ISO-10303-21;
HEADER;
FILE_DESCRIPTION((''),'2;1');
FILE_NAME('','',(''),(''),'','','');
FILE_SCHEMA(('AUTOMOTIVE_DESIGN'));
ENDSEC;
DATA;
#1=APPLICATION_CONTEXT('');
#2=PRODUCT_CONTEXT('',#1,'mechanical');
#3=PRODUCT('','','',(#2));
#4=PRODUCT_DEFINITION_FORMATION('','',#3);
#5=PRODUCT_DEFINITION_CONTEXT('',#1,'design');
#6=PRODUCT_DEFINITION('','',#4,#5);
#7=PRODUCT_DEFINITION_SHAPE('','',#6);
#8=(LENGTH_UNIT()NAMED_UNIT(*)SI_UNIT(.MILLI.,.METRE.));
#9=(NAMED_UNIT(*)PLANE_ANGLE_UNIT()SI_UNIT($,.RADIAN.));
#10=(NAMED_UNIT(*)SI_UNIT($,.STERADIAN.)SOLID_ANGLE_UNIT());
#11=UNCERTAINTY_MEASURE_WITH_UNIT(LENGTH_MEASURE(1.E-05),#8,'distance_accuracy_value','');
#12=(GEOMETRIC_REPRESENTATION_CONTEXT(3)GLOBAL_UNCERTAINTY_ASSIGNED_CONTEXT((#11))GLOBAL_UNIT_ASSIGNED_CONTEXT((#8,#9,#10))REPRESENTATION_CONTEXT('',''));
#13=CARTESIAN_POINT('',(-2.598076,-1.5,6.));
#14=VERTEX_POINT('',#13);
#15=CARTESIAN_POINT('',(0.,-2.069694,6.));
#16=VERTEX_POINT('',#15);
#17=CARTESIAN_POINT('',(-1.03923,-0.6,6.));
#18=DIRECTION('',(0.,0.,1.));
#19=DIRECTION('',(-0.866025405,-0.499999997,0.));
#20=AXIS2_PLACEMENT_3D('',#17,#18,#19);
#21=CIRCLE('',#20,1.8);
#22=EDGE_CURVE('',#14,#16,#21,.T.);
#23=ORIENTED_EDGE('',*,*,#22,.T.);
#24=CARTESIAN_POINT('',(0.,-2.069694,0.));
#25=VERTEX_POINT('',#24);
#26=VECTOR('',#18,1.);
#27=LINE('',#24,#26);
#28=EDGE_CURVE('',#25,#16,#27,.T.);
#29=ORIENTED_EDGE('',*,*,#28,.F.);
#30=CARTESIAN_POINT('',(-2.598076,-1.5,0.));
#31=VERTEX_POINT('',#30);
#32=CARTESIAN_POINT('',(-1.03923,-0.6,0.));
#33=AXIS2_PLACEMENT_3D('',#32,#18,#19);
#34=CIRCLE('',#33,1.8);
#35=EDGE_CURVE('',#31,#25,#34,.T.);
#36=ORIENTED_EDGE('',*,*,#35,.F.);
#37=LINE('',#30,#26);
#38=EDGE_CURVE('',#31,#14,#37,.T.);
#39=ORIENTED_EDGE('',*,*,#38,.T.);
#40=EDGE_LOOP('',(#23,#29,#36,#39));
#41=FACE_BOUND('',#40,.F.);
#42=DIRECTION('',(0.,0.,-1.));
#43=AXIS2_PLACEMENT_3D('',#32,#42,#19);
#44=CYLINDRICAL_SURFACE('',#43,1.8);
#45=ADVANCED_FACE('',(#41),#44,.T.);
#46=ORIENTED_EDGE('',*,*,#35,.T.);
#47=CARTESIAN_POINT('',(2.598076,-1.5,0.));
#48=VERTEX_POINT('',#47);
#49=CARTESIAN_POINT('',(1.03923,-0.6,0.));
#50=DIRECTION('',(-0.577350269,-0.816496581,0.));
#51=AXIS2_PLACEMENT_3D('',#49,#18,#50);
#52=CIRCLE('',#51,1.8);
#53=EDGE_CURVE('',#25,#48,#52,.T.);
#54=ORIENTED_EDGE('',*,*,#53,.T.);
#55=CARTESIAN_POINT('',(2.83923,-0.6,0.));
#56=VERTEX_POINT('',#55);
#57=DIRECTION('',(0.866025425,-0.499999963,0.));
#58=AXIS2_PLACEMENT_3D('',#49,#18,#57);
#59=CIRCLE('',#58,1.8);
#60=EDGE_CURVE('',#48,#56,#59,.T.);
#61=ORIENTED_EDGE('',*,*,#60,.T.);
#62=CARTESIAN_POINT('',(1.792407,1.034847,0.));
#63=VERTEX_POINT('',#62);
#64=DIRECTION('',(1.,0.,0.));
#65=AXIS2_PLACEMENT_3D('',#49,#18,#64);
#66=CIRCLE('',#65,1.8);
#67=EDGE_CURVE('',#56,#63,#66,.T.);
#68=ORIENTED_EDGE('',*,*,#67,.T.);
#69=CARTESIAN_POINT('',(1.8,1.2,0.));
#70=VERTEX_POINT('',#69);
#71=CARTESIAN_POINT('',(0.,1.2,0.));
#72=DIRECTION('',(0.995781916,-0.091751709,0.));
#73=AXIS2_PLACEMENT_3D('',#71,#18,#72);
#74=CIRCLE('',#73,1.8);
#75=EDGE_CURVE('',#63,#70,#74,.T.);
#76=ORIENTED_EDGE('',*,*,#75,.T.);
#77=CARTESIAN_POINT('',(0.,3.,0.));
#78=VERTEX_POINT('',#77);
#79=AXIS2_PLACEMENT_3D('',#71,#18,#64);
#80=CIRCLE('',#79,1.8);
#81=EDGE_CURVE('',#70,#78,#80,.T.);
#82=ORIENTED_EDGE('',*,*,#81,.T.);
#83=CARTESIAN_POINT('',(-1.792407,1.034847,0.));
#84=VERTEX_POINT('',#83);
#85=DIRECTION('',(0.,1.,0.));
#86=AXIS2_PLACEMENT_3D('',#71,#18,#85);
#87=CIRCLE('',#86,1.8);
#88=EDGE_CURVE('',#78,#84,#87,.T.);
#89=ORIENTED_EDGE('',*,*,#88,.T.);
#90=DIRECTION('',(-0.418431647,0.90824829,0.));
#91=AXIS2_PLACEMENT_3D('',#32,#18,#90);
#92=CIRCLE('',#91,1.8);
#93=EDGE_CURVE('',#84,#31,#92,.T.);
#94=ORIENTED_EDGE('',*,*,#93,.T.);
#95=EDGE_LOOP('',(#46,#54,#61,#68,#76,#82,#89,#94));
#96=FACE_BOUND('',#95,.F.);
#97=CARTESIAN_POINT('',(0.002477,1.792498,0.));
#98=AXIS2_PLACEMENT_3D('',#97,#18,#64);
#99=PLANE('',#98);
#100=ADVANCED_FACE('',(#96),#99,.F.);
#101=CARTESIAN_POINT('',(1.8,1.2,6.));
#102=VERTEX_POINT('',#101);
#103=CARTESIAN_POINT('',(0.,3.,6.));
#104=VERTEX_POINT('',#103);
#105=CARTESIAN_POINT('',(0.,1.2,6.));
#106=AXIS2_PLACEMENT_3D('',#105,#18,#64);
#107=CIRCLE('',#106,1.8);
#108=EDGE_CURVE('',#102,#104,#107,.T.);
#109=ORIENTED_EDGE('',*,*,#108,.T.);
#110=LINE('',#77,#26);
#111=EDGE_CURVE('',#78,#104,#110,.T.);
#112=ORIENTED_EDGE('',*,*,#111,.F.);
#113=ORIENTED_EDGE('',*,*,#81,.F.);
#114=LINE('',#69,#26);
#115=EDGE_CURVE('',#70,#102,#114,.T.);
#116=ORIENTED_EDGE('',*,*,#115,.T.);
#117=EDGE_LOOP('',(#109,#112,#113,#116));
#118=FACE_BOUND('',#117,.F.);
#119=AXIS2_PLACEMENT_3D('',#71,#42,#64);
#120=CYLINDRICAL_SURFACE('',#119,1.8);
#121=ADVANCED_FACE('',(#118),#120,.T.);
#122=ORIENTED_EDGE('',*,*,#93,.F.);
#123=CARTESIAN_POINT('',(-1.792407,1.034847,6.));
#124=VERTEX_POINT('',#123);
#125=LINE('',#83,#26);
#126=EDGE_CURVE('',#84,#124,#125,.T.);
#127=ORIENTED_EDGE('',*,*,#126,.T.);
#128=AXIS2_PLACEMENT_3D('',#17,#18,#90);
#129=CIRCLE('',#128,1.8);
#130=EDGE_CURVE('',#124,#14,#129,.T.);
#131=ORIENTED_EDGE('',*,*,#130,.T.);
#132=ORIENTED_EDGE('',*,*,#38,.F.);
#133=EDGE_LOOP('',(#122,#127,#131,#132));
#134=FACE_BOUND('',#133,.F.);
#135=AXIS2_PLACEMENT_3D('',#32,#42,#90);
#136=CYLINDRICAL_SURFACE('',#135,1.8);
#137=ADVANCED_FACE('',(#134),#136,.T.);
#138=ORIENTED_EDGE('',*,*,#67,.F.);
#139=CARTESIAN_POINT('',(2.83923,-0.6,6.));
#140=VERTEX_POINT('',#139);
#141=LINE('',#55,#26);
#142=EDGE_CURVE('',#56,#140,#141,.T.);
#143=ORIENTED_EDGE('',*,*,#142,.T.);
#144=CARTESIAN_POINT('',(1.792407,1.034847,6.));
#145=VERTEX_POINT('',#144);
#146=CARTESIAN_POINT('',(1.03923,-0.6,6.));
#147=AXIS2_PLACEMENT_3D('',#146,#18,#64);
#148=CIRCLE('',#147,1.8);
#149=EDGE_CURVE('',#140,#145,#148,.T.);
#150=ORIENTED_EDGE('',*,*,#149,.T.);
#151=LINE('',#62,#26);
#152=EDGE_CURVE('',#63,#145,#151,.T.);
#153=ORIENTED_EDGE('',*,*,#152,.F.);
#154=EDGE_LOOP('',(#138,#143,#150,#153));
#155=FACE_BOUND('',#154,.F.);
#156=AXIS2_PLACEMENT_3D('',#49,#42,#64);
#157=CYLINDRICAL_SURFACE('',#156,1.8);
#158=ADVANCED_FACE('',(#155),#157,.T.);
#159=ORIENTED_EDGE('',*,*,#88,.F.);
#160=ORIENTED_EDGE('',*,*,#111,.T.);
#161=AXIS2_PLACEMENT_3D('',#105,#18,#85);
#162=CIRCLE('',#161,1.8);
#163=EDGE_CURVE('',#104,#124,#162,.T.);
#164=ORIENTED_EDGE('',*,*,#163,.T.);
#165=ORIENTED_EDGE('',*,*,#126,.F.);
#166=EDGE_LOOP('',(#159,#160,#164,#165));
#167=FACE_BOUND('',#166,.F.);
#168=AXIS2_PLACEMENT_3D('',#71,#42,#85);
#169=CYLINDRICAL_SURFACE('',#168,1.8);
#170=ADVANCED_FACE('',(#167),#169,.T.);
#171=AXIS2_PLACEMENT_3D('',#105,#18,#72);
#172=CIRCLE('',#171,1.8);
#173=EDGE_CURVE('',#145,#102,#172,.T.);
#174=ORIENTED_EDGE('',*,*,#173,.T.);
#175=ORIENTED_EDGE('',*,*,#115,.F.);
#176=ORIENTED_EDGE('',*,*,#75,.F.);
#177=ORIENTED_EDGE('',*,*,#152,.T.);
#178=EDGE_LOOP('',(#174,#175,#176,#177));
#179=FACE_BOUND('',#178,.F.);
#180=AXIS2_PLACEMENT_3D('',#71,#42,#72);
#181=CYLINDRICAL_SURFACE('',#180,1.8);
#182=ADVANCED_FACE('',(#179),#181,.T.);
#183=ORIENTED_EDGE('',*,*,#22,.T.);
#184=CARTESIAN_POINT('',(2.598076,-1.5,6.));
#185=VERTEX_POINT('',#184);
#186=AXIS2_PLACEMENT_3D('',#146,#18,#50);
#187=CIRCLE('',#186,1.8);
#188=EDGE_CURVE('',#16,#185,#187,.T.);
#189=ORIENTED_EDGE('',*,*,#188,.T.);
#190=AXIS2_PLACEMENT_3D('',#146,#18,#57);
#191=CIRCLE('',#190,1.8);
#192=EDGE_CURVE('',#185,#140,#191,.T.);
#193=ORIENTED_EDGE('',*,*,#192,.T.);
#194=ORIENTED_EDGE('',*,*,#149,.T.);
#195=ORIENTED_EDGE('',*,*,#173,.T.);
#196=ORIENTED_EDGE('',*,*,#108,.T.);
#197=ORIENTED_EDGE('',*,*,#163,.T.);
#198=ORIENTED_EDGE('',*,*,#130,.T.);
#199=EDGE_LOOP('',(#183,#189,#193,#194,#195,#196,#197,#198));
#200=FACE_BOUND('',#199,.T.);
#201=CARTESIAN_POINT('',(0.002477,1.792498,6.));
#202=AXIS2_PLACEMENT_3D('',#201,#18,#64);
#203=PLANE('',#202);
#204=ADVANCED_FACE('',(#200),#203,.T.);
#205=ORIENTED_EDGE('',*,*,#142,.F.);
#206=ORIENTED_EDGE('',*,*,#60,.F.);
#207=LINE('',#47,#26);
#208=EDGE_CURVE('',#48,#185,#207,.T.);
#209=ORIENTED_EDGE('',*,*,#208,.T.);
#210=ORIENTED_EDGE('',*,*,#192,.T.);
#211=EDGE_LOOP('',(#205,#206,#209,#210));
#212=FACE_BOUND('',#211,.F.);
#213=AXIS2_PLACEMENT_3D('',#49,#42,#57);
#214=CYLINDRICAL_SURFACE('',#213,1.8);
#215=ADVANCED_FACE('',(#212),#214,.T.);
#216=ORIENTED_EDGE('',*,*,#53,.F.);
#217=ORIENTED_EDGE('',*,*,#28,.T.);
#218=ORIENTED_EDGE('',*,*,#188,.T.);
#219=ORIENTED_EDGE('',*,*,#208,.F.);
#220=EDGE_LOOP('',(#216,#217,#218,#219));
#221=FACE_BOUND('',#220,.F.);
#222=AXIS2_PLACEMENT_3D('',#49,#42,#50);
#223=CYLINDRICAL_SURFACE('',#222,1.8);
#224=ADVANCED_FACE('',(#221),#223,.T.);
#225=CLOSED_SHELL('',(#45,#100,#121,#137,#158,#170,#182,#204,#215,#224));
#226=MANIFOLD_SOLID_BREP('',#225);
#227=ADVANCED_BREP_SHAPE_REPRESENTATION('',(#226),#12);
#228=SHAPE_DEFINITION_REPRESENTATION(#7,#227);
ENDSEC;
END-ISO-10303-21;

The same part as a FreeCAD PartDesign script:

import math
import FreeCAD as App
import Part
import Sketcher
Q = App.Units.Quantity

doc = App.newDocument("Part")
body = doc.addObject("PartDesign::Body", "Body")

# Sketch on XY plane
sketch1 = body.newObject("Sketcher::SketchObject", "Sketch")
sketch1.AttachmentSupport = (doc.getObject("XY_Plane"), [""])
sketch1.MapMode = "FlatFace"
sketch1.addGeometry([
    Part.ArcOfCircle(Part.Circle(App.Vector(1.04, -0.6, 0), App.Vector(0, 0, 1), 1.8), math.radians(-125), math.radians(-30)),  # 0
    Part.ArcOfCircle(Part.Circle(App.Vector(1.04, -0.6, 0), App.Vector(0, 0, 1), 1.8), math.radians(-30), math.radians(0)),  # 1
    Part.ArcOfCircle(Part.Circle(App.Vector(1.04, -0.6, 0), App.Vector(0, 0, 1), 1.8), math.radians(0), math.radians(65)),  # 2
    Part.ArcOfCircle(Part.Circle(App.Vector(0, 1.2, 0), App.Vector(0, 0, 1), 1.8), math.radians(-5.26), math.radians(0)),  # 3
    Part.ArcOfCircle(Part.Circle(App.Vector(0, 1.2, 0), App.Vector(0, 0, 1), 1.8), math.radians(0), math.radians(90)),  # 4
    Part.ArcOfCircle(Part.Circle(App.Vector(0, 1.2, 0), App.Vector(0, 0, 1), 1.8), math.radians(90), math.radians(185)),  # 5
    Part.ArcOfCircle(Part.Circle(App.Vector(-1.04, -0.6, 0), App.Vector(0, 0, 1), 1.8), math.radians(115), math.radians(210)),  # 6
    Part.ArcOfCircle(Part.Circle(App.Vector(-1.04, -0.6, 0), App.Vector(0, 0, 1), 1.8), math.radians(-150), math.radians(-55)),  # 7
], False)
sketch1.addConstraint([
    Sketcher.Constraint("Tangent", 0, 2, 1, 1),
    Sketcher.Constraint("Tangent", 1, 2, 2, 1),
    Sketcher.Constraint("Coincident", 2, 2, 3, 1),
    Sketcher.Constraint("Tangent", 3, 2, 4, 1),
    Sketcher.Constraint("Tangent", 4, 2, 5, 1),
    Sketcher.Constraint("Coincident", 5, 2, 6, 1),
    Sketcher.Constraint("Tangent", 6, 2, 7, 1),
    Sketcher.Constraint("Coincident", 7, 2, 0, 1),
    Sketcher.Constraint("Coincident", 2, 3, 0, 3),
    Sketcher.Constraint("Coincident", 5, 3, 3, 3),
    Sketcher.Constraint("Equal", 2, 3),
    Sketcher.Constraint("Equal", 5, 6),
    Sketcher.Constraint("Equal", 6, 7),
    Sketcher.Constraint("Symmetric", 0, 3, 6, 3, -2),
    Sketcher.Constraint("PointOnObject", 3, 3, -2),
    Sketcher.Constraint("PointOnObject", 4, 2, -2),
    Sketcher.Constraint("Horizontal", 7, 3, 1, 2),
    Sketcher.Constraint("Horizontal", 5, 3, 3, 2),
    Sketcher.Constraint("Horizontal", 0, 2, 6, 2),
    Sketcher.Constraint("Radius", 0, Q("1.8 mm")),
    Sketcher.Constraint("DistanceY", -1, 1, 4, 2, Q("3 mm")),
    Sketcher.Constraint("DistanceY", 0, 3, -1, 1, Q("0.6 mm")),
    Sketcher.Constraint("DistanceY", 0, 2, -1, 1, Q("1.5 mm")),
    Sketcher.Constraint("DistanceX", -1, 1, 0, 3, Q("1.03923 mm")),
])
pad1 = body.newObject("PartDesign::Pad", "Pad")
pad1.Profile = sketch1
pad1.Length = 6

doc.recompute()
